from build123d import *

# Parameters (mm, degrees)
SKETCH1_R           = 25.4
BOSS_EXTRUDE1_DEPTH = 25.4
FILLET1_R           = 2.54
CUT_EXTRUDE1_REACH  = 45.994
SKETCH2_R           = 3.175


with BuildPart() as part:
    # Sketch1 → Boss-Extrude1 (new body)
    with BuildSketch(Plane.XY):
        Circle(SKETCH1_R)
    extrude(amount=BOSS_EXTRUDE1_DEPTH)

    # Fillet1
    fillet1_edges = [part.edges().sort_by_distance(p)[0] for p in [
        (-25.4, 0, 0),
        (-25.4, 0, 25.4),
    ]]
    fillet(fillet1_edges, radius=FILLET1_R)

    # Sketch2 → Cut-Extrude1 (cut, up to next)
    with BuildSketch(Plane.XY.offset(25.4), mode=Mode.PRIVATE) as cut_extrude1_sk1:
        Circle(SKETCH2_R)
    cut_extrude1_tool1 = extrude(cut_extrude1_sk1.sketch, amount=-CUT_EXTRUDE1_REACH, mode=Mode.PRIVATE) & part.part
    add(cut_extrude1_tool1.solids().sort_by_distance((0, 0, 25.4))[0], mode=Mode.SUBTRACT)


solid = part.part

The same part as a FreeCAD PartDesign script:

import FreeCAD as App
import Part
import Sketcher

V = App.Vector
Q = App.Units.Quantity


def edges_at(feature, points):
    """Names of the edges that pass closest to the given points."""
    edges = feature.Shape.Edges
    near = lambda p: min(range(len(edges)), key=lambda i: edges[i].distToShape(Part.Vertex(*p))[0])
    return sorted({f"Edge{near(p) + 1}" for p in points})

doc = App.newDocument("Part")
body = doc.addObject("PartDesign::Body", "Body")

sketch1 = body.newObject("Sketcher::SketchObject", "Sketch")
sketch1.AttachmentSupport = (doc.getObject("XY_Plane"), [""])
sketch1.MapMode = "FlatFace"
sketch1.addGeometry(Part.Circle(V(0, 0, 0), V(0, 0, 1), 25), False)
sketch1.addConstraint([
    Sketcher.Constraint("Coincident", 0, 3, -1, 1),
    Sketcher.Constraint("Diameter", 0, Q("2 in")),
])
pad1 = body.newObject("PartDesign::Pad", "Pad")
pad1.Profile = sketch1
pad1.Length = Q("1 in")
doc.recompute()

fillet = body.newObject("PartDesign::Fillet", "Fillet")
fillet.Base = (pad1, edges_at(pad1, [(-25.4, 0, 0), (-25.4, 0, 25.4)]))
fillet.Radius = Q("0.1 in")

sketch2 = body.newObject("Sketcher::SketchObject", "Sketch001")
sketch2.AttachmentSupport = (doc.getObject("XY_Plane"), [""])
sketch2.MapMode = "FlatFace"
sketch2.AttachmentOffset = App.Placement(V(0, 0, 1 * 25.4), App.Rotation())
sketch2.addGeometry(Part.Circle(V(0, 0, 0), V(0, 0, 1), 3.2), False)
sketch2.addConstraint([
    Sketcher.Constraint("Coincident", 0, 3, -1, 1),
    Sketcher.Constraint("Diameter", 0, Q("0.25 in")),
])
pocket1 = body.newObject("PartDesign::Pocket", "Pocket")
pocket1.Profile = sketch2
pocket1.Type = "UpToFirst"

doc.recompute()
